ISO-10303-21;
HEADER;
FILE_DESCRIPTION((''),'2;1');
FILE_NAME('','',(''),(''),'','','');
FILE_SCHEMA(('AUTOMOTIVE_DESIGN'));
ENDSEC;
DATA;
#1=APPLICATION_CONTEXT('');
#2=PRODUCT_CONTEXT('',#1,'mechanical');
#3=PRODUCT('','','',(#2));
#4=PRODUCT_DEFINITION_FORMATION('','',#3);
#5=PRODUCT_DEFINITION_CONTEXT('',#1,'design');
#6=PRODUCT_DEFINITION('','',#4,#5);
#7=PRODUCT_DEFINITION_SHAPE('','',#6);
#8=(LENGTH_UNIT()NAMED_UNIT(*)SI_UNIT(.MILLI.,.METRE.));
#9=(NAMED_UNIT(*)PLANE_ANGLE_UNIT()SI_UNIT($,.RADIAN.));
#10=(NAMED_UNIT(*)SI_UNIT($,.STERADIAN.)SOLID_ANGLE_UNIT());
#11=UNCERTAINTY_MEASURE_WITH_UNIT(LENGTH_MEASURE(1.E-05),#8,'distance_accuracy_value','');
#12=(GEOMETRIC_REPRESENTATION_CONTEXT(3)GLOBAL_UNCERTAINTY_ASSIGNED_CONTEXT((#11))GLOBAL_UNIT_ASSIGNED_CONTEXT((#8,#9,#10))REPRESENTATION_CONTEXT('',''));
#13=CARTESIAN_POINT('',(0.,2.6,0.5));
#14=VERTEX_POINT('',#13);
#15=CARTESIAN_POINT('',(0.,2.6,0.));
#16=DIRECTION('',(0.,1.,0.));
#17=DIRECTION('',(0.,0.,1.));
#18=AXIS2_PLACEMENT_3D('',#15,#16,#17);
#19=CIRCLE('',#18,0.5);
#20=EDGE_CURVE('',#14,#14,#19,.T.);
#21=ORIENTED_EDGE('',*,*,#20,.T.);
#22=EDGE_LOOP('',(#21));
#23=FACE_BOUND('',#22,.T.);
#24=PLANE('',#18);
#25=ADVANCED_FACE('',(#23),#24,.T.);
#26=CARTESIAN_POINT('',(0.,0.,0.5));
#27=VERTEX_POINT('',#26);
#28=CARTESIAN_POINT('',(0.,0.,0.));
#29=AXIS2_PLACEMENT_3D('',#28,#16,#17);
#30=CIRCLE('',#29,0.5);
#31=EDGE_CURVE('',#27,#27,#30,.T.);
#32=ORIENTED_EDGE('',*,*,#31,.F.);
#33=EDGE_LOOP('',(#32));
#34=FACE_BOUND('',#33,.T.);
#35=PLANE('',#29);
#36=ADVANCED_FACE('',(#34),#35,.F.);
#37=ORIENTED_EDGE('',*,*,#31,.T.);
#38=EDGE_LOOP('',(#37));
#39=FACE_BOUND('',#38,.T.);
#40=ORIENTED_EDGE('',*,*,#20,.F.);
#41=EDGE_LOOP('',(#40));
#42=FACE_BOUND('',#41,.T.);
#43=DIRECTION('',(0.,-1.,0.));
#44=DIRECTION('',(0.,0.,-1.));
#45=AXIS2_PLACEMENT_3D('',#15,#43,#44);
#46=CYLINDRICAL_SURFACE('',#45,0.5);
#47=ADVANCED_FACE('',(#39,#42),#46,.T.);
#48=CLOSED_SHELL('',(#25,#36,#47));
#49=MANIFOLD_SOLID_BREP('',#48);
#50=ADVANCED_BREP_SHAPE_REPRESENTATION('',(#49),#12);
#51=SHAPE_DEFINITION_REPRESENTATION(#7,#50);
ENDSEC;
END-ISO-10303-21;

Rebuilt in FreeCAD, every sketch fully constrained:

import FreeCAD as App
import Part
import Sketcher

V = App.Vector

doc = App.newDocument("Part")
params = doc.addObject("Spreadsheet::Sheet", "Params")
for row, (alias, value) in enumerate([
    ("sketch1_diameter", "1 mm"),
    ("pad1_length", "2.6 mm"),
], start=1):
    params.set(f"A{row}", alias)
    params.set(f"B{row}", "=" + value)
    params.setAlias(f"B{row}", alias)

body = doc.addObject("PartDesign::Body", "Body")

sketch1 = doc.addObject("Sketcher::SketchObject", "Sketch")
body.addObject(sketch1)
sketch1.AttachmentSupport = (doc.XZ_Plane, [""])
sketch1.MapMode = "FlatFace"
sketch1.addGeometry(Part.Circle(V(0, 0, 0), V(0, 0, 1), 0.5), False)
sketch1.addConstraint(Sketcher.Constraint("Coincident", 0, 3, -1, 1))
sketch1.addConstraint(Sketcher.Constraint("Diameter", 0, 1.0))
sketch1.setExpression("Constraints[1]", "Params.sketch1_diameter")
pad1 = doc.addObject("PartDesign::Pad", "Pad")
body.addObject(pad1)
pad1.Profile = sketch1
pad1.setExpression("Length", "Params.pad1_length")
pad1.Reversed = True

doc.recompute()
